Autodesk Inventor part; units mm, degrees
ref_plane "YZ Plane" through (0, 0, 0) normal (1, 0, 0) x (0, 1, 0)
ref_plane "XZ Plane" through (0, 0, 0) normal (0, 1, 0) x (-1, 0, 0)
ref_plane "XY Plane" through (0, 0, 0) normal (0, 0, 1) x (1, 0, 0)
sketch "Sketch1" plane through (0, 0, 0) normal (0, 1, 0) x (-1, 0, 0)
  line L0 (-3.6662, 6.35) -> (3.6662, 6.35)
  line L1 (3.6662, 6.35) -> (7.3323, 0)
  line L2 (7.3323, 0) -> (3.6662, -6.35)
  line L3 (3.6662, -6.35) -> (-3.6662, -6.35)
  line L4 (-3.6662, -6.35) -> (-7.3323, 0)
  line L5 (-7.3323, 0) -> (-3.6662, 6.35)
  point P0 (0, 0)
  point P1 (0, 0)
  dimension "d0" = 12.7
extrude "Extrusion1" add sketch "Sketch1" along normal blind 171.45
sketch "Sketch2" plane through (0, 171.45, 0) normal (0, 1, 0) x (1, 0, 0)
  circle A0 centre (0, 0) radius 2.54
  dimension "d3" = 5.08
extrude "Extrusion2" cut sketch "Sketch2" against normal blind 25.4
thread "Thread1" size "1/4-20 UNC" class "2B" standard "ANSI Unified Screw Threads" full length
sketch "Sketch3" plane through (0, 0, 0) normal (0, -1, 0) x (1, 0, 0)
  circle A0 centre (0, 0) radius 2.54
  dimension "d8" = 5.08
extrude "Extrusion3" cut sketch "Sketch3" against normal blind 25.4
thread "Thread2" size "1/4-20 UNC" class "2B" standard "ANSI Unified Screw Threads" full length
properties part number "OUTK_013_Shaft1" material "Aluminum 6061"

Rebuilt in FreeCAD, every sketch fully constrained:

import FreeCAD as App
import Part
import Sketcher
from FreeCAD import Vector
Q = App.Units.Quantity

doc = App.newDocument("Part")
body = doc.addObject("PartDesign::Body", "Body")

sketch1 = body.newObject("Sketcher::SketchObject", "Sketch")
sketch1.AttachmentSupport = (doc.getObject("XZ_Plane"), [""])
sketch1.MapMode = "FlatFace"
sketch1.addGeometry(Part.LineSegment(Vector(-3.6662, 6.35, 0), Vector(3.6662, 6.35, 0)), False)
sketch1.addGeometry(Part.LineSegment(Vector(3.6662, 6.35, 0), Vector(7.3323, 0, 0)), False)
sketch1.addGeometry(Part.LineSegment(Vector(7.3323, 0, 0), Vector(3.6662, -6.35, 0)), False)
sketch1.addGeometry(Part.LineSegment(Vector(3.6662, -6.35, 0), Vector(-3.6662, -6.35, 0)), False)
sketch1.addGeometry(Part.LineSegment(Vector(-3.6662, -6.35, 0), Vector(-7.3323, 0, 0)), False)
sketch1.addGeometry(Part.LineSegment(Vector(-7.3323, 0, 0), Vector(-3.6662, 6.35, 0)), False)
sketch1.addConstraint(Sketcher.Constraint("Coincident", 0, 2, 1, 1))
sketch1.addConstraint(Sketcher.Constraint("Coincident", 1, 2, 2, 1))
sketch1.addConstraint(Sketcher.Constraint("Coincident", 2, 2, 3, 1))
sketch1.addConstraint(Sketcher.Constraint("Coincident", 3, 2, 4, 1))
sketch1.addConstraint(Sketcher.Constraint("Coincident", 4, 2, 5, 1))
sketch1.addConstraint(Sketcher.Constraint("Coincident", 5, 2, 0, 1))
sketch1.addConstraint(Sketcher.Constraint("Horizontal", 0))
sketch1.addConstraint(Sketcher.Constraint("Horizontal", 3))
sketch1.addConstraint(Sketcher.Constraint("Symmetric", 0, 2, 3, 2, -1, 1))
sketch1.addConstraint(Sketcher.Constraint("Symmetric", 1, 2, 4, 2, -1, 1))
sketch1.addConstraint(Sketcher.Constraint("PointOnObject", 1, 2, -1))
sketch1.addConstraint(Sketcher.Constraint("Parallel", 2, 5))
sketch1.addConstraint(Sketcher.Constraint("Vertical", 0, 2, 2, 2))
sketch1.addConstraint(Sketcher.Constraint("DistanceY", 2, 2, 0, 2, Q("0.5 in")))
sketch1.addConstraint(Sketcher.Constraint("Angle", 1, Q("-60.0005 deg")))
sketch1.addConstraint(Sketcher.Constraint("DistanceX", 3, 2, 1, 2, Q("0.433 in")))
pad1 = body.newObject("PartDesign::Pad", "Pad")
pad1.Profile = sketch1
pad1.Length = Q("6.75 in")
pad1.Reversed = True

sketch2 = body.newObject("Sketcher::SketchObject", "Sketch001")
sketch2.AttachmentSupport = (doc.getObject("XZ_Plane"), [""])
sketch2.MapMode = "FlatFace"
sketch2.AttachmentOffset = App.Placement(Vector(0, 0, -6.75 * 25.4), App.Rotation())
sketch2.addGeometry(Part.Circle(Vector(0, 0, 0), Vector(0, 0, 1), 2.54), False)
sketch2.addConstraint(Sketcher.Constraint("Coincident", 0, 3, -1, 1))
sketch2.addConstraint(Sketcher.Constraint("Diameter", 0, Q("0.2 in")))
pocket1 = body.newObject("PartDesign::Pocket", "Pocket")
pocket1.Profile = sketch2
pocket1.Length = Q("1 in")
pocket1.Reversed = True

sketch3 = body.newObject("Sketcher::SketchObject", "Sketch002")
sketch3.AttachmentSupport = (doc.getObject("XZ_Plane"), [""])
sketch3.MapMode = "FlatFace"
sketch3.addGeometry(Part.Circle(Vector(0, 0, 0), Vector(0, 0, 1), 2.54), False)
sketch3.addConstraint(Sketcher.Constraint("Coincident", 0, 3, -1, 1))
sketch3.addConstraint(Sketcher.Constraint("Diameter", 0, Q("0.2 in")))
pocket2 = body.newObject("PartDesign::Pocket", "Pocket001")
pocket2.Profile = sketch3
pocket2.Length = Q("1 in")

doc.recompute()
